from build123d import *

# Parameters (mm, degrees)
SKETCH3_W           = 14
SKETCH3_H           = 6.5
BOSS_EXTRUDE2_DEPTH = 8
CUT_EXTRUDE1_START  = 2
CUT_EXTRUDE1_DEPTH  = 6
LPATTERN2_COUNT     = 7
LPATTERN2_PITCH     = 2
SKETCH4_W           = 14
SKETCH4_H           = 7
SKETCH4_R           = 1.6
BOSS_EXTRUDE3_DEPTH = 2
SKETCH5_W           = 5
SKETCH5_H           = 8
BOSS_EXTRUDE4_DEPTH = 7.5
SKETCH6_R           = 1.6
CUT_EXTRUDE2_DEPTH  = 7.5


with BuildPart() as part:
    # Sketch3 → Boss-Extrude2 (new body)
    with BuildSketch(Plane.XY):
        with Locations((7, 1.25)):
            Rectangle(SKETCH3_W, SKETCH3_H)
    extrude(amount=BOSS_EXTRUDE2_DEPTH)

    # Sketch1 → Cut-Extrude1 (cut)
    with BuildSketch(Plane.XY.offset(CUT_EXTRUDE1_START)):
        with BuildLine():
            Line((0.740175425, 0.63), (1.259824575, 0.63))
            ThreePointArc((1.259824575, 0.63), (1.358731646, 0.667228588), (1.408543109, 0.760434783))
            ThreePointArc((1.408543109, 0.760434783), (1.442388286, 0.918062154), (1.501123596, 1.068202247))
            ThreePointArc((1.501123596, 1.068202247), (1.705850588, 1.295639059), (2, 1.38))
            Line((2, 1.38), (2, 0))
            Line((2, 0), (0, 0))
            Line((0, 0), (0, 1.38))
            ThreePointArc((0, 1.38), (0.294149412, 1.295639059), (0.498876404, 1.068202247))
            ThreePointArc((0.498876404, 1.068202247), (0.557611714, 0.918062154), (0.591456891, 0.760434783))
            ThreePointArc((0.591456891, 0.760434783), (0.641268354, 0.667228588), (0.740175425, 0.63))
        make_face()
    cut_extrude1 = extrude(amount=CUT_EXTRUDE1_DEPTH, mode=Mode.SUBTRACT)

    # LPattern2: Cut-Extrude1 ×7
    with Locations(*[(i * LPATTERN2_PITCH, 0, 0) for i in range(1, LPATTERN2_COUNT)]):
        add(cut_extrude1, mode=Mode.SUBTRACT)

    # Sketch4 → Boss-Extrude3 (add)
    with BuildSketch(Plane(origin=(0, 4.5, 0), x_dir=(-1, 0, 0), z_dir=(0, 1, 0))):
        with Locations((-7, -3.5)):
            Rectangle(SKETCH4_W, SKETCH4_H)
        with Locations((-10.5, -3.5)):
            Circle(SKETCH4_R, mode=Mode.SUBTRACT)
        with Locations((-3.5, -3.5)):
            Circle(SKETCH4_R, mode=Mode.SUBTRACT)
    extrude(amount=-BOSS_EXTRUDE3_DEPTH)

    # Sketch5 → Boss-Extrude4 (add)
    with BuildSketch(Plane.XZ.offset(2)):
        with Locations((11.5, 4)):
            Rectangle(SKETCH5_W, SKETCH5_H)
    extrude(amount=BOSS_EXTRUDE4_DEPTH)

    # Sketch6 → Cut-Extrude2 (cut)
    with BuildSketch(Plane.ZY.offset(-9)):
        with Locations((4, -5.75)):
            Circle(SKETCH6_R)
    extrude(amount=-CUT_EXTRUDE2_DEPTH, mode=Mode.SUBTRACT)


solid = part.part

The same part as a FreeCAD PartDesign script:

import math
import FreeCAD as App
import Part
import Sketcher

doc = App.newDocument("Part")
body = doc.addObject("PartDesign::Body", "Body")

# Sketch on XY plane
sketch1 = doc.addObject("Sketcher::SketchObject", "Sketch")
body.addObject(sketch1)
sketch1.AttachmentSupport = (doc.XY_Plane, [""])
sketch1.MapMode = "FlatFace"
sketch1.addGeometry(Part.LineSegment(App.Vector(0, 4, 0), App.Vector(0, -2, 0)), False)
sketch1.addGeometry(Part.LineSegment(App.Vector(0, -2, 0), App.Vector(14, -2, 0)), False)
sketch1.addGeometry(Part.LineSegment(App.Vector(14, -2, 0), App.Vector(14, 4, 0)), False)
sketch1.addGeometry(Part.LineSegment(App.Vector(14, 4, 0), App.Vector(0, 4, 0)), False)
sketch1.addConstraint(Sketcher.Constraint("Coincident", 0, 2, 1, 1))
sketch1.addConstraint(Sketcher.Constraint("Coincident", 1, 2, 2, 1))
sketch1.addConstraint(Sketcher.Constraint("Coincident", 2, 2, 3, 1))
sketch1.addConstraint(Sketcher.Constraint("Coincident", 3, 2, 0, 1))
sketch1.addConstraint(Sketcher.Constraint("Vertical", 0))
sketch1.addConstraint(Sketcher.Constraint("Horizontal", 1))
sketch1.addConstraint(Sketcher.Constraint("Vertical", 2))
sketch1.addConstraint(Sketcher.Constraint("Horizontal", 3))
sketch1.addConstraint(Sketcher.Constraint("PointOnObject", 0, 2, -2))
sketch1.addConstraint(Sketcher.Constraint("DistanceX", 1, 1, 1, 2, 14.0))
sketch1.addConstraint(Sketcher.Constraint("DistanceY", 0, 2, 0, 1, 6.5))
sketch1.addConstraint(Sketcher.Constraint("DistanceY", 0, 2, -1, 1, 2.0))
pad1 = doc.addObject("PartDesign::Pad", "Pad")
body.addObject(pad1)
pad1.Profile = sketch1
pad1.Length = 8

# Sketch on XY plane
sketch2 = doc.addObject("Sketcher::SketchObject", "Sketch001")
body.addObject(sketch2)
sketch2.AttachmentSupport = (doc.XY_Plane, [""])
sketch2.MapMode = "FlatFace"
sketch2.AttachmentOffset = App.Placement(App.Vector(0, 0, 2), App.Rotation())
sketch2.addGeometry(Part.LineSegment(App.Vector(1.26, 0.63, 0), App.Vector(0.74, 0.63, 0)), False)
sketch2.addGeometry(Part.ArcOfCircle(Part.Circle(App.Vector(0.74, 0.78, 0), App.Vector(0, 0, 1), 0.15), math.radians(-173), math.radians(-90)), False)
sketch2.addGeometry(Part.ArcOfCircle(Part.Circle(App.Vector(-0.4, 0.63, 0), App.Vector(0, 0, 1), 1), math.radians(7.49), math.radians(25.99)), False)
sketch2.addGeometry(Part.ArcOfCircle(Part.Circle(App.Vector(0, 0.83, 0), App.Vector(0, 0, 1), 0.55), math.radians(26), math.radians(90)), False)
sketch2.addGeometry(Part.LineSegment(App.Vector(0, 1.38, 0), App.Vector(0, 0, 0)), False)
sketch2.addGeometry(Part.LineSegment(App.Vector(0, 0, 0), App.Vector(2, 0, 0)), False)
sketch2.addGeometry(Part.LineSegment(App.Vector(2, 0, 0), App.Vector(2, 1.38, 0)), False)
sketch2.addGeometry(Part.ArcOfCircle(Part.Circle(App.Vector(2, 0.83, 0), App.Vector(0, 0, 1), 0.55), math.radians(90), math.radians(154)), False)
sketch2.addGeometry(Part.ArcOfCircle(Part.Circle(App.Vector(2.4, 0.63, 0), App.Vector(0, 0, 1), 1), math.radians(154.01), math.radians(172.51)), False)
sketch2.addGeometry(Part.ArcOfCircle(Part.Circle(App.Vector(1.26, 0.78, 0), App.Vector(0, 0, 1), 0.15), math.radians(-90), math.radians(-7)), False)
sketch2.addConstraint(Sketcher.Constraint("Tangent", 0, 2, 1, 2))
sketch2.addConstraint(Sketcher.Constraint("Tangent", 1, 1, 2, 1))
sketch2.addConstraint(Sketcher.Constraint("Tangent", 2, 2, 3, 1))
sketch2.addConstraint(Sketcher.Constraint("Coincident", 3, 2, 4, 1))
sketch2.addConstraint(Sketcher.Constraint("Coincident", 4, 2, 5, 1))
sketch2.addConstraint(Sketcher.Constraint("Coincident", 5, 2, 6, 1))
sketch2.addConstraint(Sketcher.Constraint("Coincident", 6, 2, 7, 1))
sketch2.addConstraint(Sketcher.Constraint("Tangent", 7, 2, 8, 1))
sketch2.addConstraint(Sketcher.Constraint("Tangent", 8, 2, 9, 2))
sketch2.addConstraint(Sketcher.Constraint("Tangent", 9, 1, 0, 1))
sketch2.addConstraint(Sketcher.Constraint("Horizontal", 0))
sketch2.addConstraint(Sketcher.Constraint("Vertical", 4))
sketch2.addConstraint(Sketcher.Constraint("Horizontal", 5))
sketch2.addConstraint(Sketcher.Constraint("Vertical", 6))
sketch2.addConstraint(Sketcher.Constraint("Coincident", 4, 2, -1, 1))
sketch2.addConstraint(Sketcher.Constraint("Equal", 3, 7))
sketch2.addConstraint(Sketcher.Constraint("Equal", 2, 8))
sketch2.addConstraint(Sketcher.Constraint("Equal", 1, 9))
sketch2.addConstraint(Sketcher.Constraint("PointOnObject", 3, 3, -2))
sketch2.addConstraint(Sketcher.Constraint("Horizontal", 3, 3, 7, 3))
sketch2.addConstraint(Sketcher.Constraint("Horizontal", 2, 3, 8, 3))
sketch2.addConstraint(Sketcher.Constraint("Horizontal", 8, 3, 0, 2))
sketch2.addConstraint(Sketcher.Constraint("Vertical", 7, 3, 5, 2))
sketch2.addConstraint(Sketcher.Constraint("Radius", 2, 1.0))
sketch2.addConstraint(Sketcher.Constraint("DistanceX", 5, 1, 5, 2, 2.0))
sketch2.addConstraint(Sketcher.Constraint("Radius", 1, 0.15))
sketch2.addConstraint(Sketcher.Constraint("Radius", 3, 0.555))
sketch2.addConstraint(Sketcher.Constraint("DistanceY", 4, 2, 4, 1, 1.38))
sketch2.addConstraint(Sketcher.Constraint("DistanceX", 2, 3, -1, 1, 0.4))
pocket1 = doc.addObject("PartDesign::Pocket", "Pocket")
body.addObject(pocket1)
pocket1.Profile = sketch2
pocket1.Length = 6
pocket1.Reversed = True
doc.recompute()

linearpattern = doc.addObject("PartDesign::LinearPattern", "LinearPattern")
body.addObject(linearpattern)
linearpattern.Originals = [pocket1]
linearpattern.Direction = (doc.X_Axis, [""])
linearpattern.Mode = "offset"
linearpattern.Offset = 2
linearpattern.Occurrences = 7
body.Tip = linearpattern

# Sketch on XZ plane
sketch3 = doc.addObject("Sketcher::SketchObject", "Sketch002")
body.addObject(sketch3)
sketch3.AttachmentSupport = (doc.XZ_Plane, [""])
sketch3.MapMode = "FlatFace"
sketch3.AttachmentOffset = App.Placement(App.Vector(0, 0, -4.5), App.Rotation())
sketch3.addGeometry(Part.LineSegment(App.Vector(14, 0, 0), App.Vector(14, -7, 0)), False)
sketch3.addGeometry(Part.LineSegment(App.Vector(14, -7, 0), App.Vector(0, -7, 0)), False)
sketch3.addGeometry(Part.LineSegment(App.Vector(0, -7, 0), App.Vector(0, 0, 0)), False)
sketch3.addGeometry(Part.LineSegment(App.Vector(0, 0, 0), App.Vector(14, 0, 0)), False)
sketch3.addGeometry(Part.Circle(App.Vector(10.5, -3.5, 0), App.Vector(0, 0, 1), 1.6), False)
sketch3.addGeometry(Part.Circle(App.Vector(3.5, -3.5, 0), App.Vector(0, 0, 1), 1.6), False)
sketch3.addConstraint(Sketcher.Constraint("Coincident", 0, 2, 1, 1))
sketch3.addConstraint(Sketcher.Constraint("Coincident", 1, 2, 2, 1))
sketch3.addConstraint(Sketcher.Constraint("Coincident", 2, 2, 3, 1))
sketch3.addConstraint(Sketcher.Constraint("Coincident", 3, 2, 0, 1))
sketch3.addConstraint(Sketcher.Constraint("Vertical", 0))
sketch3.addConstraint(Sketcher.Constraint("Horizontal", 1))
sketch3.addConstraint(Sketcher.Constraint("Vertical", 2))
sketch3.addConstraint(Sketcher.Constraint("Horizontal", 3))
sketch3.addConstraint(Sketcher.Constraint("Coincident", 2, 2, -1, 1))
sketch3.addConstraint(Sketcher.Constraint("Equal", 4, 5))
sketch3.addConstraint(Sketcher.Constraint("Horizontal", 4, 3, 5, 3))
sketch3.addConstraint(Sketcher.Constraint("Diameter", 4, 3.2))
sketch3.addConstraint(Sketcher.Constraint("DistanceX", 1, 2, 1, 1, 14.0))
sketch3.addConstraint(Sketcher.Constraint("DistanceY", 0, 2, 0, 1, 7.0))
sketch3.addConstraint(Sketcher.Constraint("DistanceX", 5, 3, 4, 3, 7.0))
sketch3.addConstraint(Sketcher.Constraint("DistanceX", -1, 1, 4, 3, 10.5))
sketch3.addConstraint(Sketcher.Constraint("DistanceY", 4, 3, -1, 1, 3.5))
pad2 = doc.addObject("PartDesign::Pad", "Pad001")
body.addObject(pad2)
pad2.Profile = sketch3
pad2.Length = 2

# Sketch on XZ plane
sketch4 = doc.addObject("Sketcher::SketchObject", "Sketch003")
body.addObject(sketch4)
sketch4.AttachmentSupport = (doc.XZ_Plane, [""])
sketch4.MapMode = "FlatFace"
sketch4.AttachmentOffset = App.Placement(App.Vector(0, 0, 2), App.Rotation())
sketch4.addGeometry(Part.LineSegment(App.Vector(9, 8, 0), App.Vector(9, 0, 0)), False)
sketch4.addGeometry(Part.LineSegment(App.Vector(9, 0, 0), App.Vector(14, 0, 0)), False)
sketch4.addGeometry(Part.LineSegment(App.Vector(14, 0, 0), App.Vector(14, 8, 0)), False)
sketch4.addGeometry(Part.LineSegment(App.Vector(14, 8, 0), App.Vector(9, 8, 0)), False)
sketch4.addConstraint(Sketcher.Constraint("Coincident", 0, 2, 1, 1))
sketch4.addConstraint(Sketcher.Constraint("Coincident", 1, 2, 2, 1))
sketch4.addConstraint(Sketcher.Constraint("Coincident", 2, 2, 3, 1))
sketch4.addConstraint(Sketcher.Constraint("Coincident", 3, 2, 0, 1))
sketch4.addConstraint(Sketcher.Constraint("Vertical", 0))
sketch4.addConstraint(Sketcher.Constraint("Horizontal", 1))
sketch4.addConstraint(Sketcher.Constraint("Vertical", 2))
sketch4.addConstraint(Sketcher.Constraint("Horizontal", 3))
sketch4.addConstraint(Sketcher.Constraint("PointOnObject", 0, 2, -1))
sketch4.addConstraint(Sketcher.Constraint("DistanceX", 1, 1, 1, 2, 5.0))
sketch4.addConstraint(Sketcher.Constraint("DistanceY", 0, 2, 0, 1, 8.0))
sketch4.addConstraint(Sketcher.Constraint("DistanceX", -1, 1, 0, 2, 9.0))
pad3 = doc.addObject("PartDesign::Pad", "Pad002")
body.addObject(pad3)
pad3.Profile = sketch4
pad3.Length = 7.5

# Sketch on YZ plane
sketch5 = doc.addObject("Sketcher::SketchObject", "Sketch004")
body.addObject(sketch5)
sketch5.AttachmentSupport = (doc.YZ_Plane, [""])
sketch5.MapMode = "FlatFace"
sketch5.AttachmentOffset = App.Placement(App.Vector(0, 0, 9), App.Rotation())
sketch5.addGeometry(Part.Circle(App.Vector(-5.8, 4, 0), App.Vector(0, 0, 1), 1.6), False)
sketch5.addConstraint(Sketcher.Constraint("Diameter", 0, 3.2))
sketch5.addConstraint(Sketcher.Constraint("DistanceY", -1, 1, 0, 3, 4.0))
sketch5.addConstraint(Sketcher.Constraint("DistanceX", 0, 3, -1, 1, 5.75))
pocket2 = doc.addObject("PartDesign::Pocket", "Pocket001")
body.addObject(pocket2)
pocket2.Profile = sketch5
pocket2.Length = 7.5
pocket2.Reversed = True

doc.recompute()
